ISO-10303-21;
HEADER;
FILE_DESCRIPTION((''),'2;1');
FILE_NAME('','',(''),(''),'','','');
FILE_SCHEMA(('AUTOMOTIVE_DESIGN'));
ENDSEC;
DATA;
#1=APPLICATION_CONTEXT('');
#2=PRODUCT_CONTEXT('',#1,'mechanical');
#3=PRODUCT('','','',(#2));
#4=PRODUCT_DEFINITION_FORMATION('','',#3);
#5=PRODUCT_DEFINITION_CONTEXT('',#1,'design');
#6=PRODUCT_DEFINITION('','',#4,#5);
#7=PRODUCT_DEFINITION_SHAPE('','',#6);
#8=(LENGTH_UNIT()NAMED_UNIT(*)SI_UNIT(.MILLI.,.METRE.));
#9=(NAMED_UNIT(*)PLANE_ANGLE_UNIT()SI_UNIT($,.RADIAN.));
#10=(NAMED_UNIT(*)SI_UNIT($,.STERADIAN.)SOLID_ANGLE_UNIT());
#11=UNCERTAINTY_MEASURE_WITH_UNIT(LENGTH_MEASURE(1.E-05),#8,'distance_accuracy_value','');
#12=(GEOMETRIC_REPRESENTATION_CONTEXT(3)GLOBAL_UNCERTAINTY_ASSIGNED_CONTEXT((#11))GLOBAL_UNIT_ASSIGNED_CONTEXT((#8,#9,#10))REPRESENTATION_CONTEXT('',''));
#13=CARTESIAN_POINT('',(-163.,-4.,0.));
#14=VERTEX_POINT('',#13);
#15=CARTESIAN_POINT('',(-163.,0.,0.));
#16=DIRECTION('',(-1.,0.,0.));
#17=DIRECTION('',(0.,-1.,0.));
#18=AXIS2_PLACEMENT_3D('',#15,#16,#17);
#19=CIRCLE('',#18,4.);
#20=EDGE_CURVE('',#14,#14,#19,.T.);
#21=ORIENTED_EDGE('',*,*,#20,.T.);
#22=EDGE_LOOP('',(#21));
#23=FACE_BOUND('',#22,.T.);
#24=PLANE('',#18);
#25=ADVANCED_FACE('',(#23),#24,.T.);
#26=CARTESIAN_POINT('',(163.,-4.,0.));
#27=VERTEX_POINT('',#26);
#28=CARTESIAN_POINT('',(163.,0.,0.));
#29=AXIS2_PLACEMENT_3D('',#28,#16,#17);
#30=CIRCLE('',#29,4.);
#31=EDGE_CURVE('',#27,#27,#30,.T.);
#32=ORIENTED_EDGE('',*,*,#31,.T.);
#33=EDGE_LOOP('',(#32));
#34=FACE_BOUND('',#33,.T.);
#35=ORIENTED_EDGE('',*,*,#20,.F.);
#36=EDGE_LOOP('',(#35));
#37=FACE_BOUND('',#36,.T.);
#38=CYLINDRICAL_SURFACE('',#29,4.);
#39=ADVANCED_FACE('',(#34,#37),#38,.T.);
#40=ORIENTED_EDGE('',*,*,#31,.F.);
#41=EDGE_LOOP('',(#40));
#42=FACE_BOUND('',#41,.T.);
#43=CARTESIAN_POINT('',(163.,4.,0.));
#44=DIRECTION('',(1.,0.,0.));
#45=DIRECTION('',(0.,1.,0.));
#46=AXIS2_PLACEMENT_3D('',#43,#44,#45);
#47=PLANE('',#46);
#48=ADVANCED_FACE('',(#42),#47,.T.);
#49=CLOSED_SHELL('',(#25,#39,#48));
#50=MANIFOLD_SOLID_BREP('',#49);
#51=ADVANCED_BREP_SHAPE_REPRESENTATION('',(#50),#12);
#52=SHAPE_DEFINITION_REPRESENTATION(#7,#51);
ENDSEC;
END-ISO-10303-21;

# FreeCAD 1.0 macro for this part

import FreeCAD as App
import Part
import Sketcher
from FreeCAD import Vector

doc = App.newDocument("Part")
body = doc.addObject("PartDesign::Body", "Body")

# Sketch on XY plane
sketch1 = doc.addObject("Sketcher::SketchObject", "Sketch")
body.addObject(sketch1)
sketch1.AttachmentSupport = (doc.XY_Plane, [""])
sketch1.MapMode = "FlatFace"
sketch1.addGeometry([
    Part.LineSegment(Vector(163, 4, 0), Vector(163, 0, 0)),
    Part.LineSegment(Vector(163, 0, 0), Vector(-163, 0, 0)),
    Part.LineSegment(Vector(-163, 0, 0), Vector(-163, 4, 0)),
    Part.LineSegment(Vector(-163, 4, 0), Vector(163, 4, 0)),
], False)
sketch1.addConstraint([
    Sketcher.Constraint("Coincident", 0, 2, 1, 1),
    Sketcher.Constraint("Coincident", 1, 2, 2, 1),
    Sketcher.Constraint("Coincident", 2, 2, 3, 1),
    Sketcher.Constraint("Coincident", 3, 2, 0, 1),
    Sketcher.Constraint("Vertical", 0),
    Sketcher.Constraint("Horizontal", 1),
    Sketcher.Constraint("Vertical", 2),
    Sketcher.Constraint("Horizontal", 3),
    Sketcher.Constraint("Symmetric", 0, 2, 1, 2, -1, 1),
    Sketcher.Constraint("DistanceX", 1, 2, 1, 1, 326.0),
    Sketcher.Constraint("DistanceY", 0, 2, 0, 1, 4.0),
])
revolution = doc.addObject("PartDesign::Revolution", "Revolution")
body.addObject(revolution)
revolution.Profile = sketch1
revolution.ReferenceAxis = (sketch1, ["H_Axis"])
revolution.Angle = 360

doc.recompute()
